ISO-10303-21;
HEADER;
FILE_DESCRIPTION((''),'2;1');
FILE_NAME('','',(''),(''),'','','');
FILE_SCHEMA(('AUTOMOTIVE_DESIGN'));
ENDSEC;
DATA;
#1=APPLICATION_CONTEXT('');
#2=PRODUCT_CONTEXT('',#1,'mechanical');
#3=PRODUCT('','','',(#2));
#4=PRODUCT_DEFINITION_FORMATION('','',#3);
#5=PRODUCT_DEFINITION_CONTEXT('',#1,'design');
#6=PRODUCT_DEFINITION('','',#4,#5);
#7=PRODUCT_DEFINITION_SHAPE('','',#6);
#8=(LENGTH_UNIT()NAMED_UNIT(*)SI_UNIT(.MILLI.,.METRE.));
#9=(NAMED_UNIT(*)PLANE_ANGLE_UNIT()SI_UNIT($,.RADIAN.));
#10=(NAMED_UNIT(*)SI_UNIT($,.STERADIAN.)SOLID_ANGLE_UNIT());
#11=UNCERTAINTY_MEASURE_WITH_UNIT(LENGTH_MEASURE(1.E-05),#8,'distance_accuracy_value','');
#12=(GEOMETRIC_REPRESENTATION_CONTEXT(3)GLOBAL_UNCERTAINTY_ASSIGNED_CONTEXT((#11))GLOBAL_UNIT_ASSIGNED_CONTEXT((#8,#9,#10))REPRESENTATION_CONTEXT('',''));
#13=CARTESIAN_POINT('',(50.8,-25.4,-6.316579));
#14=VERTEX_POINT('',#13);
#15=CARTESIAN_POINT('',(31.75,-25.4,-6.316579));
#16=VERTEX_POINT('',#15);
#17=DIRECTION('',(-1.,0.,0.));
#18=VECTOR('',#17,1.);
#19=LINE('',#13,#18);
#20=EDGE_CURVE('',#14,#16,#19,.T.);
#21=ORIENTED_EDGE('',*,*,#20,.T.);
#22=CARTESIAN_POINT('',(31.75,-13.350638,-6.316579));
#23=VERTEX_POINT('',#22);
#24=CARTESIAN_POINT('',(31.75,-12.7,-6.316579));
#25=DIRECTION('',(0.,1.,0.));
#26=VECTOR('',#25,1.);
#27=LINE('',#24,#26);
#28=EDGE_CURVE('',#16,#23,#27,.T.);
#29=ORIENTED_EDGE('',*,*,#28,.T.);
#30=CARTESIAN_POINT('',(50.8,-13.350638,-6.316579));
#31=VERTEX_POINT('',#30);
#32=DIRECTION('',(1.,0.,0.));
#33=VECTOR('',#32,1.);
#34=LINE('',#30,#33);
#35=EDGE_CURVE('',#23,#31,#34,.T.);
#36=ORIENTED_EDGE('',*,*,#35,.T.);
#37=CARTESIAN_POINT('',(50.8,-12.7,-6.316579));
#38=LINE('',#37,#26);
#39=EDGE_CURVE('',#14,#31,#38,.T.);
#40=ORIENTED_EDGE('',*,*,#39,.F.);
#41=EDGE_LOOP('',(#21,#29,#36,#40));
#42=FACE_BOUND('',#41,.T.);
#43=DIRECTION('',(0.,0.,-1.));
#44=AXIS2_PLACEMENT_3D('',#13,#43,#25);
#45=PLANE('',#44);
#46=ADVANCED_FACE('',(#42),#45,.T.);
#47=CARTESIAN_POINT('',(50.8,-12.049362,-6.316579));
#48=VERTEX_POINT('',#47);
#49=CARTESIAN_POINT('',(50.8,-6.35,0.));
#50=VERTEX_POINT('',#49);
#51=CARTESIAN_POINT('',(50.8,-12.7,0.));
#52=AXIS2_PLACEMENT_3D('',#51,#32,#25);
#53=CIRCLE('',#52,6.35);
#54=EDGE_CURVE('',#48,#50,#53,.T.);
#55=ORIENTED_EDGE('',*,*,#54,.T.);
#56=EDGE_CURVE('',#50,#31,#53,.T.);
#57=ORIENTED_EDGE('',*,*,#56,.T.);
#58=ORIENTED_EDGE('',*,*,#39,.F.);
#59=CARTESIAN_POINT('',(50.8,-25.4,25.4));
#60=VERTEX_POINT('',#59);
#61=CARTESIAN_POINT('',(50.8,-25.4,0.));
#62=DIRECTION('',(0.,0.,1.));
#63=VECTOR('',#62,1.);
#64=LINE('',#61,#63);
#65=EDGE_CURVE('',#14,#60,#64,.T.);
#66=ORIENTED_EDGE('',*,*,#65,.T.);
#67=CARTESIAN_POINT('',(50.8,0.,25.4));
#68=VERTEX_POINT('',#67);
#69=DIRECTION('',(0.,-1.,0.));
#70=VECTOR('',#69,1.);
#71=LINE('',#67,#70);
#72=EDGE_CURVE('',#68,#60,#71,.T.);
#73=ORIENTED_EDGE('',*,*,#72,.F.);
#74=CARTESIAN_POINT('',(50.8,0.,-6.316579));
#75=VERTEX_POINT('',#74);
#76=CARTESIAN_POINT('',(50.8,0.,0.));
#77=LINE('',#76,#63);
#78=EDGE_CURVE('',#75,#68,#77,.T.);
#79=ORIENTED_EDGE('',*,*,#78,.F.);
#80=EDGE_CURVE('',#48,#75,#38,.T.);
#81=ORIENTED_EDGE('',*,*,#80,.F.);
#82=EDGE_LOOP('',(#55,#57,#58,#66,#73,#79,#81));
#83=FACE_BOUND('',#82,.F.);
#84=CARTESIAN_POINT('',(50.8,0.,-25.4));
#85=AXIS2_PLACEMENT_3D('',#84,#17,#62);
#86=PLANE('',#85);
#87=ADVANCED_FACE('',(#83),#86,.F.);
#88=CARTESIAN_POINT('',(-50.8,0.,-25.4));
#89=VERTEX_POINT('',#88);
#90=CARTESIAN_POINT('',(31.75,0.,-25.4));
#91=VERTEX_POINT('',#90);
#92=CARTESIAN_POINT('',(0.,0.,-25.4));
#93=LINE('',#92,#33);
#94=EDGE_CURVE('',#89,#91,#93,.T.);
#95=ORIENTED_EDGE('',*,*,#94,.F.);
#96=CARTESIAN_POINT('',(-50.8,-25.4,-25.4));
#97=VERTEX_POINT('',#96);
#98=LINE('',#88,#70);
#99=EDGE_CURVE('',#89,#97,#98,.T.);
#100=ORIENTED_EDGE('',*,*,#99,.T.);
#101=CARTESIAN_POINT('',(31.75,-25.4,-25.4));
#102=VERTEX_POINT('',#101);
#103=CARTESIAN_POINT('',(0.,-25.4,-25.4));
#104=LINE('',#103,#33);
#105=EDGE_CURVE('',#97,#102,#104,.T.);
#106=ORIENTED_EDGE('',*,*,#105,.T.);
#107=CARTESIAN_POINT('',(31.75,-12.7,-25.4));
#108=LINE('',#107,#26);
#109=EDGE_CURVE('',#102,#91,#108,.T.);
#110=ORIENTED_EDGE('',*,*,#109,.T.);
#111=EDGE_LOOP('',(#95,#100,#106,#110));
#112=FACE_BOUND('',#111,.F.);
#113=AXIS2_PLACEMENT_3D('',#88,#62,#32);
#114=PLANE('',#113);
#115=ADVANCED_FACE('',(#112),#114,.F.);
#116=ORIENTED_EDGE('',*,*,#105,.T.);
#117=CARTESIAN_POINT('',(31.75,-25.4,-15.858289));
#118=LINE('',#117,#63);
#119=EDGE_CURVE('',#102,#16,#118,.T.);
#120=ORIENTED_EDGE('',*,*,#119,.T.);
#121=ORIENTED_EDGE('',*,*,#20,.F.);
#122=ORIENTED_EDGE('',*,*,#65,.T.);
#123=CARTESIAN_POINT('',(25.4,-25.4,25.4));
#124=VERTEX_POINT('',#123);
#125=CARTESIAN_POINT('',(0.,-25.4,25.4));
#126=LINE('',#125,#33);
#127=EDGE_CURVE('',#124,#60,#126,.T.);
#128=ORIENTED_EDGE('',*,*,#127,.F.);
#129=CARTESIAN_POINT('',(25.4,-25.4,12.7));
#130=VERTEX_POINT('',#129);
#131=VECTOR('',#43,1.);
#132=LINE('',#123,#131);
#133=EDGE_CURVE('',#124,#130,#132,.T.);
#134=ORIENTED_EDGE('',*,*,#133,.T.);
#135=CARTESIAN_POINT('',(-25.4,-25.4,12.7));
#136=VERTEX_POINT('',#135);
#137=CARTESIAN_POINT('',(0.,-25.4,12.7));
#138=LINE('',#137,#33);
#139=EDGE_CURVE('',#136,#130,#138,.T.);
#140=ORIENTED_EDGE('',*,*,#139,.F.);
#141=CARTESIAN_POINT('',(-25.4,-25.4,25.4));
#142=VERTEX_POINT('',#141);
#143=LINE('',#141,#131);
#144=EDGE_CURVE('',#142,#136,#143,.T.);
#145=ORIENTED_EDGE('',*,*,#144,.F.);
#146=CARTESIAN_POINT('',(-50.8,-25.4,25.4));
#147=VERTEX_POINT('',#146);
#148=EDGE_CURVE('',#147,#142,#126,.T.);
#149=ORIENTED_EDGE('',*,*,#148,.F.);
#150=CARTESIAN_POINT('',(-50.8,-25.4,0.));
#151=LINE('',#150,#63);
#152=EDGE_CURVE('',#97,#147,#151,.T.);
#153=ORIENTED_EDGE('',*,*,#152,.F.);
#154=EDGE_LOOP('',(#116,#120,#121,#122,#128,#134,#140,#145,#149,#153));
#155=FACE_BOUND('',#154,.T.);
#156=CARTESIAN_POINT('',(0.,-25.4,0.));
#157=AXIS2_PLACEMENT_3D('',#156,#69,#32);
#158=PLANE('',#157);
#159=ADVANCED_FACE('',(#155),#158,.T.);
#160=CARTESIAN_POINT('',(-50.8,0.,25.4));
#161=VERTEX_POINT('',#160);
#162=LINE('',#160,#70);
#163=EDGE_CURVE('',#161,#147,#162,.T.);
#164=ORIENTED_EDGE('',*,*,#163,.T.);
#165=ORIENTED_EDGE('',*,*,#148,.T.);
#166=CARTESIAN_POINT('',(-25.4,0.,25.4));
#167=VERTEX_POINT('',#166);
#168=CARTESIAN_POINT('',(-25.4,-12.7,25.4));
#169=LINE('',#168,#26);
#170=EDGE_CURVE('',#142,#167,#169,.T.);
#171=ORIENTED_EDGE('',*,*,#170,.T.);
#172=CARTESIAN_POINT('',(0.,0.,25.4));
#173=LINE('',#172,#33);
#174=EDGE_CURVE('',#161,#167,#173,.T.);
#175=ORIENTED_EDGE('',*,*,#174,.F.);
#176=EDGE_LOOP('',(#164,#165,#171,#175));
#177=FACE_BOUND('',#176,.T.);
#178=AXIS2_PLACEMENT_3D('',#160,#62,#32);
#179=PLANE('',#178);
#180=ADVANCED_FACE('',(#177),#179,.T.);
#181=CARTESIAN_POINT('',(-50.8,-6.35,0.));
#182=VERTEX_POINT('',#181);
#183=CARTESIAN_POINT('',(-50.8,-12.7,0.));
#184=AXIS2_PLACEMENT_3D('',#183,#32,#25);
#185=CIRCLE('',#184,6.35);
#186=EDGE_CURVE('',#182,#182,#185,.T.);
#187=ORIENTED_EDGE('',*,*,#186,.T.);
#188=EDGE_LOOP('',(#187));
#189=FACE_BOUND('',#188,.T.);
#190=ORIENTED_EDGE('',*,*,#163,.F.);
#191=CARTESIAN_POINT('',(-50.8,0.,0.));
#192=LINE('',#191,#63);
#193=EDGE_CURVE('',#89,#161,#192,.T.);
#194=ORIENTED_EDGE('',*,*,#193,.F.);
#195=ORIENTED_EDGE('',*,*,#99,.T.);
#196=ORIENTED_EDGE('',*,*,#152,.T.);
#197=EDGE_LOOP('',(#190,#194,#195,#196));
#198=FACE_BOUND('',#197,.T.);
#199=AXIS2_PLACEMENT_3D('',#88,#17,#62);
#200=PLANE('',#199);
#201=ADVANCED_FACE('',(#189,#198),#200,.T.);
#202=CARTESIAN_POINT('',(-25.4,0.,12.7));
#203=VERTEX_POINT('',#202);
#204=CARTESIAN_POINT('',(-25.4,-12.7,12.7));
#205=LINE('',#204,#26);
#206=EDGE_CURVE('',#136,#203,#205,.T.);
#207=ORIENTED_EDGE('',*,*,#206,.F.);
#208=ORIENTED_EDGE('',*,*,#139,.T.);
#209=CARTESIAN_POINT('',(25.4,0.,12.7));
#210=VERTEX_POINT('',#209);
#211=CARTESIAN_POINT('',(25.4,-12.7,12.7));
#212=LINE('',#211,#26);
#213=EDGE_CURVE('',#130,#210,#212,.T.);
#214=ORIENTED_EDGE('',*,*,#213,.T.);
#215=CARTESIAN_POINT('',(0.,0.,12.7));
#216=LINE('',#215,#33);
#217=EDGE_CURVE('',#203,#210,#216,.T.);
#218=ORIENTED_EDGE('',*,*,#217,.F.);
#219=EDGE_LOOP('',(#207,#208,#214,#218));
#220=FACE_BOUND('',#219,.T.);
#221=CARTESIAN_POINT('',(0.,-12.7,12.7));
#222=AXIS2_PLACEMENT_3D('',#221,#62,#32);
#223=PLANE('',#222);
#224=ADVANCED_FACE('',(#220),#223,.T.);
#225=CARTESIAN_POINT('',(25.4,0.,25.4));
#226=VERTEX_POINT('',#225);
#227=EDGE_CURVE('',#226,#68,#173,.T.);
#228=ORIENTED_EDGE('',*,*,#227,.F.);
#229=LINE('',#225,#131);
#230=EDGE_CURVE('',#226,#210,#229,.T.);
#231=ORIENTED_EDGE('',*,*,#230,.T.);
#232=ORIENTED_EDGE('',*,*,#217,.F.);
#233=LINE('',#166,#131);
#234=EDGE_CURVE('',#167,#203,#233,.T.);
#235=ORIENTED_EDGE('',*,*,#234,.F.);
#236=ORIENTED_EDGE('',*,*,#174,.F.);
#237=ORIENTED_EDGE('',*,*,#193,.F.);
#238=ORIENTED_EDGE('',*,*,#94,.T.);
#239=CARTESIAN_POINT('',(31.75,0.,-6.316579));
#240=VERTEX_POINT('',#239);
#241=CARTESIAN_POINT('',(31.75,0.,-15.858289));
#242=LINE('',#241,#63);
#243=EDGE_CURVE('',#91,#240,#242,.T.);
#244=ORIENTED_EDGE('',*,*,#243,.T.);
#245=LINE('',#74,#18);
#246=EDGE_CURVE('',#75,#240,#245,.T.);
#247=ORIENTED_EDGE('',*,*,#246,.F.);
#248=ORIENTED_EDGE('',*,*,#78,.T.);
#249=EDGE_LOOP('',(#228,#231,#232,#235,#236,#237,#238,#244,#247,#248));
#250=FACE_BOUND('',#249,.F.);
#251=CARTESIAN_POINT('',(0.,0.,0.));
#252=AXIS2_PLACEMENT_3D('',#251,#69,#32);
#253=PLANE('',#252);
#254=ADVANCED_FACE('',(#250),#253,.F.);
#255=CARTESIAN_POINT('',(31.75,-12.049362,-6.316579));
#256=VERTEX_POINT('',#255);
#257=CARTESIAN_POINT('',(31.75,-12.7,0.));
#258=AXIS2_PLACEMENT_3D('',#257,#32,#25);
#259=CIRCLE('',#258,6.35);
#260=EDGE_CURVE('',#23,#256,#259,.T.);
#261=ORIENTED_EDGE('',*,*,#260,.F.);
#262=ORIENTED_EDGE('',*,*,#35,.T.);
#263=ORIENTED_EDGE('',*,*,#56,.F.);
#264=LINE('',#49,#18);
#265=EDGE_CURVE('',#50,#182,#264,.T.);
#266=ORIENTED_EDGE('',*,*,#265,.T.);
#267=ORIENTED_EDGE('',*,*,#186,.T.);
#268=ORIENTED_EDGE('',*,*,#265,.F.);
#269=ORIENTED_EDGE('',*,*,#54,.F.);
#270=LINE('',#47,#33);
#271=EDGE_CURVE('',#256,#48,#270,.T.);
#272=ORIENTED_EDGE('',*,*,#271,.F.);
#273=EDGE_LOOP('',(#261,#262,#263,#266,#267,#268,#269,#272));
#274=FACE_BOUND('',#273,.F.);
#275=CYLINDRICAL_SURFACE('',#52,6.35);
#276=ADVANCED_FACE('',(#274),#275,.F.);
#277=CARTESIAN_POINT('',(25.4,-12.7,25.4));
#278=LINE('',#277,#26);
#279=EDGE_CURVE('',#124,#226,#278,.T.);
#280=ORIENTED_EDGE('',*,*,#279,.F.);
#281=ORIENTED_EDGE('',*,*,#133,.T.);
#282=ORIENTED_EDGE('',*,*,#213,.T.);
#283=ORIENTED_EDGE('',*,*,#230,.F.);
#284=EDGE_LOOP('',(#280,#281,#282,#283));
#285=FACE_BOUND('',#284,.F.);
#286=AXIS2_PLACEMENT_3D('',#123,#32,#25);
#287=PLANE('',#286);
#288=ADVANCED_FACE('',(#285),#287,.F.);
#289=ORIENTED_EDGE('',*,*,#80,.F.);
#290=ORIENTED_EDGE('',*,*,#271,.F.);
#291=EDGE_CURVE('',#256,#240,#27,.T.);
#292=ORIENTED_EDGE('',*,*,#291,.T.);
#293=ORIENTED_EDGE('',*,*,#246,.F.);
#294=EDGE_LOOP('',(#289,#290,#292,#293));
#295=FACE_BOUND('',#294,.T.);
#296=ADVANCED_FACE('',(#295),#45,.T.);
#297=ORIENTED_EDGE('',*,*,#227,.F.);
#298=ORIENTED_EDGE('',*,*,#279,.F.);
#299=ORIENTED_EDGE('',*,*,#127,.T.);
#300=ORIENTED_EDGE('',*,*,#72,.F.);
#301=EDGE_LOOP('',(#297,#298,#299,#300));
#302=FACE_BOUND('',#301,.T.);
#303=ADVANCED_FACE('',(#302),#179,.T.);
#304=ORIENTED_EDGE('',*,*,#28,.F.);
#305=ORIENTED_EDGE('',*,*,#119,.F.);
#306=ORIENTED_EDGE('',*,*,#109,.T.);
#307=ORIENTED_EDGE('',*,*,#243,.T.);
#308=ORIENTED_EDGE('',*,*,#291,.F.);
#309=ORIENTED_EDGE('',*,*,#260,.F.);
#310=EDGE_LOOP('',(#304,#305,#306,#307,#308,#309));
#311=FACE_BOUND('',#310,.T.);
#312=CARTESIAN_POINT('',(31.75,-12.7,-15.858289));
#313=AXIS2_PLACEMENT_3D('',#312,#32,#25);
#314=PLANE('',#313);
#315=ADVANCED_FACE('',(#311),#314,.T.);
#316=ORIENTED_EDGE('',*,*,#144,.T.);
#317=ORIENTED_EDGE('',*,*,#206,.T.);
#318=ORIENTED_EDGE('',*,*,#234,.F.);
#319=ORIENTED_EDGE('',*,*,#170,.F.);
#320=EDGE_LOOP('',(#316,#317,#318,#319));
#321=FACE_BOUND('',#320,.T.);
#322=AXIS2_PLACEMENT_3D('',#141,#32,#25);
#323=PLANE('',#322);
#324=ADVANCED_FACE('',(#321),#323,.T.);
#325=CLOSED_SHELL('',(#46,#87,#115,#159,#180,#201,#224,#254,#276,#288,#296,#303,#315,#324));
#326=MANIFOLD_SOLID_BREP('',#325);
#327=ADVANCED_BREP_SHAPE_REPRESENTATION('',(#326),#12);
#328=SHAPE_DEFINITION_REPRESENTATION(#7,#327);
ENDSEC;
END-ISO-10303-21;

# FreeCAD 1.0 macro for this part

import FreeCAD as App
import Part
import Sketcher
Q = App.Units.Quantity

doc = App.newDocument("Part")
params = doc.addObject("Spreadsheet::Sheet", "Params")
for row, (alias, value) in enumerate([
    ("sketch1_width", "4 in"),
    ("sketch1_height", "2 in"),
    ("pad1_length", "1 in"),
    ("sketch2_width", "1 in"),
    ("pocket1_length", "0.75 in"),
    ("sketch3_width", "2 in"),
    ("sketch3_height", "1 in"),
    ("pocket2_length", "0.5 in"),
    ("sketch4_diameter", "0.5 in"),
], start=1):
    params.set(f"A{row}", alias)
    params.set(f"B{row}", "=" + value)
    params.setAlias(f"B{row}", alias)

body = doc.addObject("PartDesign::Body", "Body")

# Sketch on XZ plane
sketch1 = doc.addObject("Sketcher::SketchObject", "Sketch")
body.addObject(sketch1)
sketch1.AttachmentSupport = (doc.XZ_Plane, [""])
sketch1.MapMode = "FlatFace"
sketch1.addGeometry([
    Part.LineSegment(App.Vector(-50.8, 25.4, 0), App.Vector(-50.8, -25.4, 0)),
    Part.LineSegment(App.Vector(-50.8, -25.4, 0), App.Vector(50.8, -25.4, 0)),
    Part.LineSegment(App.Vector(50.8, -25.4, 0), App.Vector(50.8, 25.4, 0)),
    Part.LineSegment(App.Vector(50.8, 25.4, 0), App.Vector(-50.8, 25.4, 0)),
], False)
sketch1.addConstraint([
    Sketcher.Constraint("Coincident", 0, 2, 1, 1),
    Sketcher.Constraint("Coincident", 1, 2, 2, 1),
    Sketcher.Constraint("Coincident", 2, 2, 3, 1),
    Sketcher.Constraint("Coincident", 3, 2, 0, 1),
    Sketcher.Constraint("Vertical", 0),
    Sketcher.Constraint("Horizontal", 1),
    Sketcher.Constraint("Vertical", 2),
    Sketcher.Constraint("Horizontal", 3),
    Sketcher.Constraint("Symmetric", 0, 2, 2, 2, -1, 1),
    Sketcher.Constraint("DistanceX", 1, 1, 1, 2, Q("4 in")),
    Sketcher.Constraint("DistanceY", 0, 2, 0, 1, Q("2 in")),
])
sketch1.setExpression("Constraints[9]", "Params.sketch1_width")
sketch1.setExpression("Constraints[10]", "Params.sketch1_height")
pad1 = doc.addObject("PartDesign::Pad", "Pad")
body.addObject(pad1)
pad1.Profile = sketch1
pad1.setExpression("Length", "Params.pad1_length")

# Sketch on YZ plane
sketch2 = doc.addObject("Sketcher::SketchObject", "Sketch001")
body.addObject(sketch2)
sketch2.AttachmentSupport = (doc.YZ_Plane, [""])
sketch2.MapMode = "FlatFace"
sketch2.AttachmentOffset = App.Placement(App.Vector(0, 0, 2 * 25.4), App.Rotation())
sketch2.addGeometry([
    Part.LineSegment(App.Vector(-25.4, -6.316579, 0), App.Vector(-25.4, -25.4, 0)),
    Part.LineSegment(App.Vector(-25.4, -25.4, 0), App.Vector(0, -25.4, 0)),
    Part.LineSegment(App.Vector(0, -25.4, 0), App.Vector(0, -6.316579, 0)),
    Part.LineSegment(App.Vector(0, -6.316579, 0), App.Vector(-25.4, -6.316579, 0)),
], False)
sketch2.addConstraint([
    Sketcher.Constraint("Coincident", 0, 2, 1, 1),
    Sketcher.Constraint("Coincident", 1, 2, 2, 1),
    Sketcher.Constraint("Coincident", 2, 2, 3, 1),
    Sketcher.Constraint("Coincident", 3, 2, 0, 1),
    Sketcher.Constraint("Vertical", 0),
    Sketcher.Constraint("Horizontal", 1),
    Sketcher.Constraint("Vertical", 2),
    Sketcher.Constraint("Horizontal", 3),
    Sketcher.Constraint("PointOnObject", 1, 2, -2),
    Sketcher.Constraint("DistanceX", 1, 1, 1, 2, Q("1 in")),
    Sketcher.Constraint("DistanceY", 0, 2, -1, 1, Q("1 in")),
    Sketcher.Constraint("DistanceY", 0, 2, 0, 1, 19.083421),
])
sketch2.setExpression("Constraints[9]", "Params.sketch2_width")
pocket1 = doc.addObject("PartDesign::Pocket", "Pocket")
body.addObject(pocket1)
pocket1.Profile = sketch2
pocket1.setExpression("Length", "Params.pocket1_length")

# Sketch on XY plane
sketch3 = doc.addObject("Sketcher::SketchObject", "Sketch002")
body.addObject(sketch3)
sketch3.AttachmentSupport = (doc.XY_Plane, [""])
sketch3.MapMode = "FlatFace"
sketch3.AttachmentOffset = App.Placement(App.Vector(0, 0, 1 * 25.4), App.Rotation())
sketch3.addGeometry([
    Part.LineSegment(App.Vector(-25.4, 0, 0), App.Vector(-25.4, -25.4, 0)),
    Part.LineSegment(App.Vector(-25.4, -25.4, 0), App.Vector(25.4, -25.4, 0)),
    Part.LineSegment(App.Vector(25.4, -25.4, 0), App.Vector(25.4, 0, 0)),
    Part.LineSegment(App.Vector(25.4, 0, 0), App.Vector(-25.4, 0, 0)),
], False)
sketch3.addConstraint([
    Sketcher.Constraint("Coincident", 0, 2, 1, 1),
    Sketcher.Constraint("Coincident", 1, 2, 2, 1),
    Sketcher.Constraint("Coincident", 2, 2, 3, 1),
    Sketcher.Constraint("Coincident", 3, 2, 0, 1),
    Sketcher.Constraint("Vertical", 0),
    Sketcher.Constraint("Horizontal", 1),
    Sketcher.Constraint("Vertical", 2),
    Sketcher.Constraint("Horizontal", 3),
    Sketcher.Constraint("Symmetric", 2, 2, 3, 2, -1, 1),
    Sketcher.Constraint("DistanceX", 1, 1, 1, 2, Q("2 in")),
    Sketcher.Constraint("DistanceY", 0, 2, 0, 1, Q("1 in")),
])
sketch3.setExpression("Constraints[9]", "Params.sketch3_width")
sketch3.setExpression("Constraints[10]", "Params.sketch3_height")
pocket2 = doc.addObject("PartDesign::Pocket", "Pocket001")
body.addObject(pocket2)
pocket2.Profile = sketch3
pocket2.setExpression("Length", "Params.pocket2_length")

# Sketch on YZ plane
sketch4 = doc.addObject("Sketcher::SketchObject", "Sketch003")
body.addObject(sketch4)
sketch4.AttachmentSupport = (doc.YZ_Plane, [""])
sketch4.MapMode = "FlatFace"
sketch4.AttachmentOffset = App.Placement(App.Vector(0, 0, 2 * 25.4), App.Rotation())
sketch4.addGeometry(Part.Circle(App.Vector(-12.7, 0, 0), App.Vector(0, 0, 1), 6.35), False)
sketch4.addConstraint([
    Sketcher.Constraint("PointOnObject", 0, 3, -1),
    Sketcher.Constraint("Diameter", 0, Q("0.5 in")),
    Sketcher.Constraint("DistanceX", 0, 3, -1, 1, Q("0.5 in")),
])
sketch4.setExpression("Constraints[1]", "Params.sketch4_diameter")
pocket3 = doc.addObject("PartDesign::Pocket", "Pocket002")
body.addObject(pocket3)
pocket3.Profile = sketch4
pocket3.Type = "ThroughAll"

doc.recompute()
